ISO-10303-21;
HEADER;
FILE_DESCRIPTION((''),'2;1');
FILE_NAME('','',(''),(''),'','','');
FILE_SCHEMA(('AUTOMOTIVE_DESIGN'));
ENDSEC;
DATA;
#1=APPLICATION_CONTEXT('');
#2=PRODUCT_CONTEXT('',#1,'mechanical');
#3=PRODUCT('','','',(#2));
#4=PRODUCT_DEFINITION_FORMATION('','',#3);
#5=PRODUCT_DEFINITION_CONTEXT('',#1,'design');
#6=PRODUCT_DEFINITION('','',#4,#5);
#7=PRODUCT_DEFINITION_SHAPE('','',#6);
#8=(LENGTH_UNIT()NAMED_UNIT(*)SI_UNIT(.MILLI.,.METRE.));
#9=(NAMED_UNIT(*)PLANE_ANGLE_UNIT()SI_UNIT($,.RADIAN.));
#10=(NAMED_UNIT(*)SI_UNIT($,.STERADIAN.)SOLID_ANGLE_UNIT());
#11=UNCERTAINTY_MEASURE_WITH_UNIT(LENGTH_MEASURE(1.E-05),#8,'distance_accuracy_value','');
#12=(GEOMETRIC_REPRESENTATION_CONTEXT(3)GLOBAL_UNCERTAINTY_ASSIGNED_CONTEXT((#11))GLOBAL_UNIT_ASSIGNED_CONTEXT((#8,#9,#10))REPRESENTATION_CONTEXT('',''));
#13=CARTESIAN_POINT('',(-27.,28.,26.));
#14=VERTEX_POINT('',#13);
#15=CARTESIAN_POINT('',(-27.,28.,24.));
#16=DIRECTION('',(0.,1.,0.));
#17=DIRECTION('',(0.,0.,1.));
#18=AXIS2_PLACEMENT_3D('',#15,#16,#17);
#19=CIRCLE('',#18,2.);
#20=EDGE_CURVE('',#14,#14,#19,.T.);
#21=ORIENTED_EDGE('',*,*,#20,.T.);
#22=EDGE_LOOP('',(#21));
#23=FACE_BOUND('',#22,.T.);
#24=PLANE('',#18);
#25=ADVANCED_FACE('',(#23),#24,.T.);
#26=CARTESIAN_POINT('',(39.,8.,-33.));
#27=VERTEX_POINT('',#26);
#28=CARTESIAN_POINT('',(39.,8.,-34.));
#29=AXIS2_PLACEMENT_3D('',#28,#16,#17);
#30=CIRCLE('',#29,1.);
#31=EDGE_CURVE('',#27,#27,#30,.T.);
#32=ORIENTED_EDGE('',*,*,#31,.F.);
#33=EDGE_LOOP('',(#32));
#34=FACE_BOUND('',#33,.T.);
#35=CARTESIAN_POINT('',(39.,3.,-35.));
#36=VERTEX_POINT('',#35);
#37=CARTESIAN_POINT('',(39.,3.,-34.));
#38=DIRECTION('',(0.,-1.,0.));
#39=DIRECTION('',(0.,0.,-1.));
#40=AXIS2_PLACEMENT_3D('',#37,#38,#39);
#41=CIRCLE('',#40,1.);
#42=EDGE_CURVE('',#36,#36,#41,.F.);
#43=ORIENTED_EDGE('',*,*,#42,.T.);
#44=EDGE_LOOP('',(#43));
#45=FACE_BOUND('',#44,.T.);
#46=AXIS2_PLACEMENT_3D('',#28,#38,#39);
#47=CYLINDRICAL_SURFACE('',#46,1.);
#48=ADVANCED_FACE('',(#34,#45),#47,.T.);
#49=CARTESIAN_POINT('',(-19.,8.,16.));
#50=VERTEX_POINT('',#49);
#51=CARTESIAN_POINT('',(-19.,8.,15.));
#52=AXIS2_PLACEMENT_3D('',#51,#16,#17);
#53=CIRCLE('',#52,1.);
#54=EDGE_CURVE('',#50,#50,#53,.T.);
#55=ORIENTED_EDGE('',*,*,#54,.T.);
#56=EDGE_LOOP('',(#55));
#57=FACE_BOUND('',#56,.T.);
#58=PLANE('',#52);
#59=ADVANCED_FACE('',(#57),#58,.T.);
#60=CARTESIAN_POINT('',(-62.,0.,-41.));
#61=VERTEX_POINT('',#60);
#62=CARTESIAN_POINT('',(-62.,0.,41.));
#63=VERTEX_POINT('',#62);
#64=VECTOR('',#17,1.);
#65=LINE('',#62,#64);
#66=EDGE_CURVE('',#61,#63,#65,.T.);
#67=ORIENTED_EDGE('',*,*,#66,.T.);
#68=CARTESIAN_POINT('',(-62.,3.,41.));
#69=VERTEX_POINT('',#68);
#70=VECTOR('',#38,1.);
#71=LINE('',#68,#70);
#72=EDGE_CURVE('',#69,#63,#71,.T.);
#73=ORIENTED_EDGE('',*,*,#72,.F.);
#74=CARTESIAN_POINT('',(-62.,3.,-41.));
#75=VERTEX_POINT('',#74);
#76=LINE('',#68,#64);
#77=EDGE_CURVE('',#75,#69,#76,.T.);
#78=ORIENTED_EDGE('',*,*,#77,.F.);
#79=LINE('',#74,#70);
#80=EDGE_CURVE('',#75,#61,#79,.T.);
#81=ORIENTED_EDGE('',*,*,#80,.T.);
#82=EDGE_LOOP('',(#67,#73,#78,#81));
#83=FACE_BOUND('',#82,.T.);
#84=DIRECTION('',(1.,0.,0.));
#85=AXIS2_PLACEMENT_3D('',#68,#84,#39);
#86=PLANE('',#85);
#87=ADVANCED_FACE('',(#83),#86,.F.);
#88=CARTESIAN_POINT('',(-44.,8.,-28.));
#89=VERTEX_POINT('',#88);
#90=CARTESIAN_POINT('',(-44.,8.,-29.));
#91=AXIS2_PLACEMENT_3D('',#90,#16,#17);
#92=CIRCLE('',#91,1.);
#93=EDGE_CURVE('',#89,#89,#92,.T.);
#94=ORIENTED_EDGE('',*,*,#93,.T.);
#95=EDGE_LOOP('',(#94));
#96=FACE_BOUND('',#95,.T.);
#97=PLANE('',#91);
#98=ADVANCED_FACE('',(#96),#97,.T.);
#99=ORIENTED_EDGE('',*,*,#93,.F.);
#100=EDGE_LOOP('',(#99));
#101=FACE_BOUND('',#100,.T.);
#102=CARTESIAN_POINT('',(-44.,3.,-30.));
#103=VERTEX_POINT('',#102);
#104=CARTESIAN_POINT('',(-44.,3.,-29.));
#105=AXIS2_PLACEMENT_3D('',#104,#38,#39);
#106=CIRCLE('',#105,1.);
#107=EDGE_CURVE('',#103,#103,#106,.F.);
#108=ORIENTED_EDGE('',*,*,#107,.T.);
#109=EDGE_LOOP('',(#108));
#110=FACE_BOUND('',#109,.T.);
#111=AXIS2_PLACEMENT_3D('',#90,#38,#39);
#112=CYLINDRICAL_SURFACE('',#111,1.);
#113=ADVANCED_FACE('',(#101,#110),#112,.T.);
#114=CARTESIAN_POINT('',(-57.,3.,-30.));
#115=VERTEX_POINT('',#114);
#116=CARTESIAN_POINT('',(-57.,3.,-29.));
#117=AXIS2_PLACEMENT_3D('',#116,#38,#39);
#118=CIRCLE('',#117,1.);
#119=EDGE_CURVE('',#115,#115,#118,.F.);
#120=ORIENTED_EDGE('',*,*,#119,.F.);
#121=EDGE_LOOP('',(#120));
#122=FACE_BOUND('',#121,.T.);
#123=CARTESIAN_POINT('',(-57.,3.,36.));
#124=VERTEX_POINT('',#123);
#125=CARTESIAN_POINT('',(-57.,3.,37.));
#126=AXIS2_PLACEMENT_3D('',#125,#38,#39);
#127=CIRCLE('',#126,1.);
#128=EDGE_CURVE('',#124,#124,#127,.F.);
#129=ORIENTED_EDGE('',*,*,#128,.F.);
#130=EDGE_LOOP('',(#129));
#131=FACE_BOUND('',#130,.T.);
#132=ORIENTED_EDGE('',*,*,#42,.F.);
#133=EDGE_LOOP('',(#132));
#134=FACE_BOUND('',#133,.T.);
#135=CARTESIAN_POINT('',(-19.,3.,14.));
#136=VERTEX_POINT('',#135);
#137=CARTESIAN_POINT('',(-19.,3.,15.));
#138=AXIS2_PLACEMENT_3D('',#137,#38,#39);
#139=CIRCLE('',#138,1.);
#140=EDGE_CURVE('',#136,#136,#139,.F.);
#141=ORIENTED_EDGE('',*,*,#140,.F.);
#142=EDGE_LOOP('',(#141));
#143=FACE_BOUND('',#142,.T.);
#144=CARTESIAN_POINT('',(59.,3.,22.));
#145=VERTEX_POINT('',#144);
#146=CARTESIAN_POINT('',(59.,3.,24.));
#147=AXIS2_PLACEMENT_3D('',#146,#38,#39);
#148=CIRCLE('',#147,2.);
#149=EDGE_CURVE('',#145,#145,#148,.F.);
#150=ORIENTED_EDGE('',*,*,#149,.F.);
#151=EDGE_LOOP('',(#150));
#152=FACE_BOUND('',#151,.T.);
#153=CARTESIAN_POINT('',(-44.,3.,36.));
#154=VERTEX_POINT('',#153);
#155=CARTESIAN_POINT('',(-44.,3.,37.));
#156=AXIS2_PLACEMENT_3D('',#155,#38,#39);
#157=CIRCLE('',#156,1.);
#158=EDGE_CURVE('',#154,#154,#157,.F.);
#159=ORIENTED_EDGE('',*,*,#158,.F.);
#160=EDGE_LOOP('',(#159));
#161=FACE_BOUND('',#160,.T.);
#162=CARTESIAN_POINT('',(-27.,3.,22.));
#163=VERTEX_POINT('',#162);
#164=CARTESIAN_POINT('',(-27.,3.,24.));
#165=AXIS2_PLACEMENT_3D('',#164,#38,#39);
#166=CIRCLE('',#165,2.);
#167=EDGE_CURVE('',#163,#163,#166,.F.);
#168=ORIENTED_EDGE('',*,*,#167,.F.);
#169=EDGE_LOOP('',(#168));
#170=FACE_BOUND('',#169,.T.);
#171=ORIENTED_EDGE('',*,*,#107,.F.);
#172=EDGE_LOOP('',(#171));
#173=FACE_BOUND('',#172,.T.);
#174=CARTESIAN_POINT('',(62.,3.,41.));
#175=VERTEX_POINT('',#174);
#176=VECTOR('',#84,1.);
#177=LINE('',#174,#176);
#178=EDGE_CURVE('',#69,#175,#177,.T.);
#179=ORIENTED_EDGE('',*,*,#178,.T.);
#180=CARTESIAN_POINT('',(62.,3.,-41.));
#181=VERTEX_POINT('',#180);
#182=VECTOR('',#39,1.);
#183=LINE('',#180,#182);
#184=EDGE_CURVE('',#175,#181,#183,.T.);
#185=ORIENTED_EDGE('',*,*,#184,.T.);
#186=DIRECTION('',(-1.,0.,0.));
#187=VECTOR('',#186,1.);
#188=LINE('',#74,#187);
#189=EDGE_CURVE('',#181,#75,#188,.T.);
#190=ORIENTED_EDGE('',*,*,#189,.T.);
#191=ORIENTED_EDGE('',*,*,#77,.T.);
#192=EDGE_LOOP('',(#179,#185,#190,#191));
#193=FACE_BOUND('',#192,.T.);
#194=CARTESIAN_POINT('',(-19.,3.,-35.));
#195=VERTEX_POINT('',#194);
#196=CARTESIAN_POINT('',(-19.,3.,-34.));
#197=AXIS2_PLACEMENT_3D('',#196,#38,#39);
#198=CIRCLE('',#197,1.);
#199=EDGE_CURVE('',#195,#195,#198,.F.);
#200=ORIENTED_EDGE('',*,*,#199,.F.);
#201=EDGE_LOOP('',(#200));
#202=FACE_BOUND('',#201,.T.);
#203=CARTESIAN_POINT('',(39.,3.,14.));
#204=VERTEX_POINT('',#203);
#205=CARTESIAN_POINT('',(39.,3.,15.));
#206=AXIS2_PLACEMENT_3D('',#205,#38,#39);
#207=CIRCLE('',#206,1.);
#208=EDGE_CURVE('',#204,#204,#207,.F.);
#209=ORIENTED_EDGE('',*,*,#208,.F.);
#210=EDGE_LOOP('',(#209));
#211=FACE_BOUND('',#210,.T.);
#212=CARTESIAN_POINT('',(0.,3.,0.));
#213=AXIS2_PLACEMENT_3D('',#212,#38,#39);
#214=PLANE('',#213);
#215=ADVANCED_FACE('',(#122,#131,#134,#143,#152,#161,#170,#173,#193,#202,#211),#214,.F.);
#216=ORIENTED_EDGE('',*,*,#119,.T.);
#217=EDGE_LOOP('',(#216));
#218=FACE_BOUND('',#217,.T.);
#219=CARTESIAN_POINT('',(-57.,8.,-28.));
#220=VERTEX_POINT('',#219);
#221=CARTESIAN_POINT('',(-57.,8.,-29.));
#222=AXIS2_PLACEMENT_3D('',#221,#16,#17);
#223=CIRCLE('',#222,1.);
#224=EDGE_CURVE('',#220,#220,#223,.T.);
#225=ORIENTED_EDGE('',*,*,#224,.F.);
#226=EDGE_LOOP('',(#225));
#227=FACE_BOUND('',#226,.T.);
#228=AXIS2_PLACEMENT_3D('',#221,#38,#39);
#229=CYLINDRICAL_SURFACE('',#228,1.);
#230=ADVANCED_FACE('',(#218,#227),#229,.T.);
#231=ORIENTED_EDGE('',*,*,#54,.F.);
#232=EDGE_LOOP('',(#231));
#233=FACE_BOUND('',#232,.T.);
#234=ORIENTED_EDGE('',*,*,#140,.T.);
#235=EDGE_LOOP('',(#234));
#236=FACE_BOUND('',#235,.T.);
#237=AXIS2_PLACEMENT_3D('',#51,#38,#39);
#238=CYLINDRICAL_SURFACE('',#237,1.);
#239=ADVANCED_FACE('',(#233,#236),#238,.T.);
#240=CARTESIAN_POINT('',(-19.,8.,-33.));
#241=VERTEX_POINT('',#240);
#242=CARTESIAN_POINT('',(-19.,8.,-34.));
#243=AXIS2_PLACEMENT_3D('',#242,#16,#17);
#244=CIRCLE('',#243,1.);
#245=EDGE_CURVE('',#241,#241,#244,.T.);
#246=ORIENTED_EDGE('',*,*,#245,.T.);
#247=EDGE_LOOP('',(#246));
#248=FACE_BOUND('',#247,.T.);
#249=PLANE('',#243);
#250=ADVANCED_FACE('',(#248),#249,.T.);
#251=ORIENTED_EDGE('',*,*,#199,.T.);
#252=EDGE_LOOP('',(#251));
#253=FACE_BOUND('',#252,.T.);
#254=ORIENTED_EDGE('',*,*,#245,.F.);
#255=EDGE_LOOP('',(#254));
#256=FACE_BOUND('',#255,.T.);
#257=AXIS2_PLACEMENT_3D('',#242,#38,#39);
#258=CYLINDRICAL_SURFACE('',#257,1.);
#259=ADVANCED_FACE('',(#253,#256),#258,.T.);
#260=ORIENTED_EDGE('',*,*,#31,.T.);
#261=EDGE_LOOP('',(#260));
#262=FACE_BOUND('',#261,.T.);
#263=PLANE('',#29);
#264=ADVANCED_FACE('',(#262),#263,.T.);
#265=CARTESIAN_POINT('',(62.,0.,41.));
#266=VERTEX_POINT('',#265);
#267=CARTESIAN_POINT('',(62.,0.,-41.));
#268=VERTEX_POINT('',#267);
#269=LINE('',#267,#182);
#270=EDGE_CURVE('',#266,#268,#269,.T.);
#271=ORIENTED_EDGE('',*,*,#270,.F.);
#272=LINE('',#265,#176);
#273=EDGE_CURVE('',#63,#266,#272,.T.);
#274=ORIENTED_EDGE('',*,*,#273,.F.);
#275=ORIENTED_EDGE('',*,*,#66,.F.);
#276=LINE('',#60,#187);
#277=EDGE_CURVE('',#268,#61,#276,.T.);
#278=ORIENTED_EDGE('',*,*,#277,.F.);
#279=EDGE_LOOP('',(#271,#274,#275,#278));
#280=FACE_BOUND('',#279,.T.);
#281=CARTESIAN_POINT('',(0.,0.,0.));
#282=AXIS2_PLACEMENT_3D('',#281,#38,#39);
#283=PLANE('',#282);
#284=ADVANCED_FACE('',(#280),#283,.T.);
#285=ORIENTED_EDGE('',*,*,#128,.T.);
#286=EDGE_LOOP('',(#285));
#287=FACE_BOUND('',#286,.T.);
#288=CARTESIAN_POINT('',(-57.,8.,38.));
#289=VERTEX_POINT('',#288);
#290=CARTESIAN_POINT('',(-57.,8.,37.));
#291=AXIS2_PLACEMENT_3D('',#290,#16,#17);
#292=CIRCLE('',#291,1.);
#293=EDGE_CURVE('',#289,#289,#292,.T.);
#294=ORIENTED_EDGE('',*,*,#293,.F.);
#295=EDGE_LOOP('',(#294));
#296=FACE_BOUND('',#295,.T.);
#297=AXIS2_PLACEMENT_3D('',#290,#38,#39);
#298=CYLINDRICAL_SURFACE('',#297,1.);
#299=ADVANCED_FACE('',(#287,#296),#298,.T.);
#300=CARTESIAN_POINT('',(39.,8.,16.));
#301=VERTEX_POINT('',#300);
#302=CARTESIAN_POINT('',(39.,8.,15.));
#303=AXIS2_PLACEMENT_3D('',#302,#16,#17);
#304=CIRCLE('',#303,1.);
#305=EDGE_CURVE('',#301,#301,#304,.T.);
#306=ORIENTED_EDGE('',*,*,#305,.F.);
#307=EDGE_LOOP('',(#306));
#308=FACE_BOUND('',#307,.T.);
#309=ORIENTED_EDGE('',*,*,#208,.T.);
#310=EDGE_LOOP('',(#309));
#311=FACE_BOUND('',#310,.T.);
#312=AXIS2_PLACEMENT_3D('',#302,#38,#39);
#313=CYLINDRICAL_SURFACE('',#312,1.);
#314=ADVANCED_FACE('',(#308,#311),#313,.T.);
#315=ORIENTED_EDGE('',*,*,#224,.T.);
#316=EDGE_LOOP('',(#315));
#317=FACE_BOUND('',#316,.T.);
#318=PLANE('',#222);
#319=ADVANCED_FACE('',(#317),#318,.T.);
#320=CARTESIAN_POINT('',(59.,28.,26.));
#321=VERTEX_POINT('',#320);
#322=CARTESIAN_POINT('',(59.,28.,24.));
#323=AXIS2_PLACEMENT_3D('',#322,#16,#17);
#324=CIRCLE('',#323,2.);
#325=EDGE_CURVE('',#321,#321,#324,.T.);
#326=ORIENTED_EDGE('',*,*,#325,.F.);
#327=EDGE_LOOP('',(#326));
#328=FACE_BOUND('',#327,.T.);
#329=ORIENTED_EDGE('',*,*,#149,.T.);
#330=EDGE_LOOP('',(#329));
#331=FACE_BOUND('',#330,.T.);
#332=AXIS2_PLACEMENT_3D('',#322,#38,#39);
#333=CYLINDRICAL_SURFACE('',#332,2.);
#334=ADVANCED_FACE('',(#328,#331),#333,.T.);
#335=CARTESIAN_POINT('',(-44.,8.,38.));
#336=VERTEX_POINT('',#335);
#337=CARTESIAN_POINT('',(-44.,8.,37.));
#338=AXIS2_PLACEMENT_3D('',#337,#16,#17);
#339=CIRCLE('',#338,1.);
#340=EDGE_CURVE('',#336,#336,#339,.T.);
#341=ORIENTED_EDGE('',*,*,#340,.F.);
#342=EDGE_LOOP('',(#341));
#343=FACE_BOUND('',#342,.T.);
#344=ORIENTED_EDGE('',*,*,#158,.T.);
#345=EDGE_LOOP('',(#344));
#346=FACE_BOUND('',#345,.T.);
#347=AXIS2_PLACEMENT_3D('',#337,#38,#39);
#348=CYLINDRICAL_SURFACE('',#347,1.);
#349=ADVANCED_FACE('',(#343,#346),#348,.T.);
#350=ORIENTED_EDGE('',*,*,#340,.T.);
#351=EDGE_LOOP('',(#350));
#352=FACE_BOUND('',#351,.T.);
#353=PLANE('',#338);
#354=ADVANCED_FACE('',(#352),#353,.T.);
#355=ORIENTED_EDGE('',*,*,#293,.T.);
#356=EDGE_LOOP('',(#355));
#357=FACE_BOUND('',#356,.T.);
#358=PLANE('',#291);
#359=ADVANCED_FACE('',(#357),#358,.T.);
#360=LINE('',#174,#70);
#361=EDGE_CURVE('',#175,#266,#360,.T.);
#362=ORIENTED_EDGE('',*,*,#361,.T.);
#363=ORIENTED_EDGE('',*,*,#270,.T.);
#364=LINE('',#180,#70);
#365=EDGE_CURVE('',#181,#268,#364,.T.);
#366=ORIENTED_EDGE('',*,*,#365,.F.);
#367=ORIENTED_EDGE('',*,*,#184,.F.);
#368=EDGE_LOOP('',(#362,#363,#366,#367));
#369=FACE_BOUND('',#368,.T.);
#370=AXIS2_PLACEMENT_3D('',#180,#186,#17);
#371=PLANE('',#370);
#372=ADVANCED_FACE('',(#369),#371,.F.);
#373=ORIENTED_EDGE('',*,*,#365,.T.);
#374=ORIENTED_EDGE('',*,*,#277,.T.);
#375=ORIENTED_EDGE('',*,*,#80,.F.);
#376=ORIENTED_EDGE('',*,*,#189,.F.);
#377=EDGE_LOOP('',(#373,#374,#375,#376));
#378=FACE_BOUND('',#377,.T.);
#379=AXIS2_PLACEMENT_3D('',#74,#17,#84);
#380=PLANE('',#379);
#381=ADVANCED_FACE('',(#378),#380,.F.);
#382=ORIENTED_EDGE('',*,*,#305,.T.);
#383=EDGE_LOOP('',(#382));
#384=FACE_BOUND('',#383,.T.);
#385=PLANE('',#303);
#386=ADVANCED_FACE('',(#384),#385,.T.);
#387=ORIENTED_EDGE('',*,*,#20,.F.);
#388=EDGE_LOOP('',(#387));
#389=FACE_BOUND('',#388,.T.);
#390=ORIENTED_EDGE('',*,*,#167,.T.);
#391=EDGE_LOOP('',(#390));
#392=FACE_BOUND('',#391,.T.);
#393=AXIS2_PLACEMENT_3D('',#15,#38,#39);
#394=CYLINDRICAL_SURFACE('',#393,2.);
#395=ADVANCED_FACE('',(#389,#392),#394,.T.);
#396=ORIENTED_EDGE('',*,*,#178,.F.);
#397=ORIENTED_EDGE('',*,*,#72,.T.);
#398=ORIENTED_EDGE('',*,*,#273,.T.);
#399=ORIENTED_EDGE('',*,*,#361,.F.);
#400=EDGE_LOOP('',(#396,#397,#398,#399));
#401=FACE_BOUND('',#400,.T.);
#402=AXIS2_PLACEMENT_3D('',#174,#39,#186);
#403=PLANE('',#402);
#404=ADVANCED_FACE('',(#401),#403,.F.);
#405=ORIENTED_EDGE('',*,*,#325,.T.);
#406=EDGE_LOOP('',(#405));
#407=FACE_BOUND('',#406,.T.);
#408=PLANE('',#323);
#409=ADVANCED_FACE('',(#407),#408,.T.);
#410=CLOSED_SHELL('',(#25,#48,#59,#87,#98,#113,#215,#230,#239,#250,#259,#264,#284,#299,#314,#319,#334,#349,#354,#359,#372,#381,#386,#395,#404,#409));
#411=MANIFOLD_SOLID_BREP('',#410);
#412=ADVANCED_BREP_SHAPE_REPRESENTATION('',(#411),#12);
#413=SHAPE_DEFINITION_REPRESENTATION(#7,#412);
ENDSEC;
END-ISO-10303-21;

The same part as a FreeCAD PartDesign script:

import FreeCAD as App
import Part
import Sketcher
from FreeCAD import Vector

doc = App.newDocument("Part")
body = doc.addObject("PartDesign::Body", "Body")

# Sketch on XZ plane
sketch1 = body.newObject("Sketcher::SketchObject", "Sketch")
sketch1.AttachmentSupport = (doc.getObject("XZ_Plane"), [""])
sketch1.MapMode = "FlatFace"
sketch1.addGeometry([
    Part.LineSegment(Vector(-62, -41, 0), Vector(-62, 41, 0)),
    Part.LineSegment(Vector(-62, 41, 0), Vector(62, 41, 0)),
    Part.LineSegment(Vector(62, 41, 0), Vector(62, -41, 0)),
    Part.LineSegment(Vector(62, -41, 0), Vector(-62, -41, 0)),
], False)
sketch1.addConstraint([
    Sketcher.Constraint("Coincident", 0, 2, 1, 1),
    Sketcher.Constraint("Coincident", 1, 2, 2, 1),
    Sketcher.Constraint("Coincident", 2, 2, 3, 1),
    Sketcher.Constraint("Coincident", 3, 2, 0, 1),
    Sketcher.Constraint("Vertical", 0),
    Sketcher.Constraint("Horizontal", 1),
    Sketcher.Constraint("Vertical", 2),
    Sketcher.Constraint("Horizontal", 3),
    Sketcher.Constraint("Symmetric", 0, 2, 2, 2, -1, 1),
    Sketcher.Constraint("DistanceX", 1, 1, 1, 2, 124.0),
    Sketcher.Constraint("DistanceY", 0, 1, 0, 2, 82.0),
])
pad1 = body.newObject("PartDesign::Pad", "Pad")
pad1.Profile = sketch1
pad1.Length = 3
pad1.Reversed = True

# Sketch on XZ plane
sketch2 = body.newObject("Sketcher::SketchObject", "Sketch001")
sketch2.AttachmentSupport = (doc.getObject("XZ_Plane"), [""])
sketch2.MapMode = "FlatFace"
sketch2.AttachmentOffset = App.Placement(Vector(0, 0, -3), App.Rotation())
sketch2.addGeometry([
    Part.Circle(Vector(59, 24, 0), Vector(0, 0, 1), 2),
    Part.Circle(Vector(-27, 24, 0), Vector(0, 0, 1), 2),
], False)
sketch2.addConstraint([
    Sketcher.Constraint("Equal", 0, 1),
    Sketcher.Constraint("Horizontal", 0, 3, 1, 3),
    Sketcher.Constraint("Diameter", 0, 4.0),
    Sketcher.Constraint("DistanceX", -1, 1, 0, 3, 59.0),
    Sketcher.Constraint("DistanceY", -1, 1, 0, 3, 24.0),
    Sketcher.Constraint("DistanceX", 1, 3, -1, 1, 27.0),
])
pad2 = body.newObject("PartDesign::Pad", "Pad001")
pad2.Profile = sketch2
pad2.Length = 25
pad2.Reversed = True

# Sketch on XZ plane
sketch3 = body.newObject("Sketcher::SketchObject", "Sketch002")
sketch3.AttachmentSupport = (doc.getObject("XZ_Plane"), [""])
sketch3.MapMode = "FlatFace"
sketch3.AttachmentOffset = App.Placement(Vector(0, 0, -3), App.Rotation())
sketch3.addGeometry([
    Part.Circle(Vector(39, -34, 0), Vector(0, 0, 1), 1),
    Part.Circle(Vector(-19, -34, 0), Vector(0, 0, 1), 1),
    Part.Circle(Vector(-19, 15, 0), Vector(0, 0, 1), 1),
    Part.Circle(Vector(39, 15, 0), Vector(0, 0, 1), 1),
], False)
sketch3.addConstraint([
    Sketcher.Constraint("Equal", 0, 1),
    Sketcher.Constraint("Equal", 1, 2),
    Sketcher.Constraint("Equal", 2, 3),
    Sketcher.Constraint("Horizontal", 0, 3, 1, 3),
    Sketcher.Constraint("Horizontal", 2, 3, 3, 3),
    Sketcher.Constraint("Vertical", 1, 3, 2, 3),
    Sketcher.Constraint("Vertical", 0, 3, 3, 3),
    Sketcher.Constraint("Diameter", 0, 2.0),
    Sketcher.Constraint("DistanceX", -1, 1, 0, 3, 39.0),
    Sketcher.Constraint("DistanceY", 0, 3, -1, 1, 34.0),
    Sketcher.Constraint("DistanceX", 1, 3, -1, 1, 19.0),
    Sketcher.Constraint("DistanceY", -1, 1, 2, 3, 15.0),
])
pad3 = body.newObject("PartDesign::Pad", "Pad002")
pad3.Profile = sketch3
pad3.Length = 5
pad3.Reversed = True

# Sketch on XZ plane
sketch4 = body.newObject("Sketcher::SketchObject", "Sketch003")
sketch4.AttachmentSupport = (doc.getObject("XZ_Plane"), [""])
sketch4.MapMode = "FlatFace"
sketch4.AttachmentOffset = App.Placement(Vector(0, 0, -3), App.Rotation())
sketch4.addGeometry([
    Part.Circle(Vector(-57, 37, 0), Vector(0, 0, 1), 1),
    Part.Circle(Vector(-44, 37, 0), Vector(0, 0, 1), 1),
    Part.Circle(Vector(-44, -29, 0), Vector(0, 0, 1), 1),
    Part.Circle(Vector(-57, -29, 0), Vector(0, 0, 1), 1),
], False)
sketch4.addConstraint([
    Sketcher.Constraint("Equal", 0, 1),
    Sketcher.Constraint("Equal", 1, 2),
    Sketcher.Constraint("Equal", 2, 3),
    Sketcher.Constraint("Horizontal", 0, 3, 1, 3),
    Sketcher.Constraint("Horizontal", 2, 3, 3, 3),
    Sketcher.Constraint("Vertical", 1, 3, 2, 3),
    Sketcher.Constraint("Vertical", 0, 3, 3, 3),
    Sketcher.Constraint("Diameter", 0, 2.0),
    Sketcher.Constraint("DistanceX", 0, 3, -1, 1, 57.0),
    Sketcher.Constraint("DistanceY", -1, 1, 0, 3, 37.0),
    Sketcher.Constraint("DistanceX", 1, 3, -1, 1, 44.0),
    Sketcher.Constraint("DistanceY", 2, 3, -1, 1, 29.0),
])
pad4 = body.newObject("PartDesign::Pad", "Pad003")
pad4.Profile = sketch4
pad4.Length = 5
pad4.Reversed = True

doc.recompute()
